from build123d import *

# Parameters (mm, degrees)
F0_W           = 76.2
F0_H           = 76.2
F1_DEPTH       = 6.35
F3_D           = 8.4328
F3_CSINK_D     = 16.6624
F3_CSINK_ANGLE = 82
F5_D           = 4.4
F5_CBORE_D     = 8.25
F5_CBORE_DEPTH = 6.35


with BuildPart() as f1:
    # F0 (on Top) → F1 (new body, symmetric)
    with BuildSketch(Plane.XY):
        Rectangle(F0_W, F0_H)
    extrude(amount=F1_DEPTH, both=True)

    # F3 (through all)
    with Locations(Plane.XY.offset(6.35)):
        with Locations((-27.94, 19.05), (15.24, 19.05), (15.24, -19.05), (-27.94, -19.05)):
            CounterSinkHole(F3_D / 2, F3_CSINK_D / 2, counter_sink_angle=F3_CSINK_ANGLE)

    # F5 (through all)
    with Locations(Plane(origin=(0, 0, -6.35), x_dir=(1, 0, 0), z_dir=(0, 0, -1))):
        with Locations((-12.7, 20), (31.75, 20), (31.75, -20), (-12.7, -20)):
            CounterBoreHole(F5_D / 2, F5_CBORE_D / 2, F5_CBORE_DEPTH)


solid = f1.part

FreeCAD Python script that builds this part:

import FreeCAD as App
import Part
import Sketcher
Q = App.Units.Quantity

doc = App.newDocument("Part")
body = doc.addObject("PartDesign::Body", "Body")

sketch1 = body.newObject("Sketcher::SketchObject", "Sketch")
sketch1.AttachmentSupport = (doc.getObject("XY_Plane"), [""])
sketch1.MapMode = "FlatFace"
sketch1.addGeometry([
    Part.LineSegment(App.Vector(-38, 38, 0), App.Vector(-38, -38, 0)),
    Part.LineSegment(App.Vector(-38, -38, 0), App.Vector(38, -38, 0)),
    Part.LineSegment(App.Vector(38, -38, 0), App.Vector(38, 38, 0)),
    Part.LineSegment(App.Vector(38, 38, 0), App.Vector(-38, 38, 0)),
], False)
sketch1.addConstraint([
    Sketcher.Constraint("Coincident", 0, 2, 1, 1),
    Sketcher.Constraint("Coincident", 1, 2, 2, 1),
    Sketcher.Constraint("Coincident", 2, 2, 3, 1),
    Sketcher.Constraint("Coincident", 3, 2, 0, 1),
    Sketcher.Constraint("Vertical", 0),
    Sketcher.Constraint("Horizontal", 1),
    Sketcher.Constraint("Vertical", 2),
    Sketcher.Constraint("Horizontal", 3),
    Sketcher.Constraint("Symmetric", 0, 2, 2, 2, -1, 1),
    Sketcher.Constraint("Equal", 3, 0),
    Sketcher.Constraint("DistanceX", 1, 1, 1, 2, Q("3 in")),
])
pad1 = body.newObject("PartDesign::Pad", "Pad")
pad1.Profile = sketch1
pad1.Length = Q("0.5 in")
pad1.Midplane = True

sketch2 = body.newObject("Sketcher::SketchObject", "Sketch001")
sketch2.AttachmentSupport = (doc.getObject("XY_Plane"), [""])
sketch2.MapMode = "FlatFace"
sketch2.AttachmentOffset = App.Placement(App.Vector(0, 0, 0.25 * 25.4), App.Rotation())
sketch2.addGeometry([
    Part.Circle(App.Vector(-27.9, 19.1, 0), App.Vector(0, 0, 1), 4.2),
    Part.Circle(App.Vector(15.2, 19.1, 0), App.Vector(0, 0, 1), 4.2),
    Part.Circle(App.Vector(15.2, -19.1, 0), App.Vector(0, 0, 1), 4.2),
    Part.Circle(App.Vector(-27.9, -19.1, 0), App.Vector(0, 0, 1), 4.2),
], False)
sketch2.addConstraint([
    Sketcher.Constraint("Equal", 0, 1),
    Sketcher.Constraint("Equal", 1, 2),
    Sketcher.Constraint("Equal", 2, 3),
    Sketcher.Constraint("Symmetric", 1, 3, 2, 3, -1),
    Sketcher.Constraint("Symmetric", 0, 3, 3, 3, -1),
    Sketcher.Constraint("Horizontal", 0, 3, 1, 3),
    Sketcher.Constraint("Diameter", 0, Q("0.332 in")),
    Sketcher.Constraint("DistanceX", 0, 3, -1, 1, Q("1.1 in")),
    Sketcher.Constraint("DistanceX", -1, 1, 1, 3, Q("0.6 in")),
    Sketcher.Constraint("DistanceY", 2, 3, 1, 3, Q("1.5 in")),
])
doc.recompute()
hole = body.newObject("PartDesign::Hole", "Hole")
hole.Profile = sketch2
hole.ThreadType = "None"
hole.Diameter = Q("0.332 in")
hole.DepthType = "ThroughAll"
hole.HoleCutType = "Countersink"
hole.HoleCutDiameter = Q("0.656 in")
hole.HoleCutCountersinkAngle = 82

sketch3 = body.newObject("Sketcher::SketchObject", "Sketch002")
sketch3.AttachmentSupport = (doc.getObject("XY_Plane"), [""])
sketch3.MapMode = "FlatFace"
sketch3.AttachmentOffset = App.Placement(App.Vector(0, 0, -0.25 * 25.4), App.Rotation())
sketch3.addGeometry([
    Part.Circle(App.Vector(-12.7, -20, 0), App.Vector(0, 0, 1), 2.2),
    Part.Circle(App.Vector(31.8, -20, 0), App.Vector(0, 0, 1), 2.2),
    Part.Circle(App.Vector(31.8, 20, 0), App.Vector(0, 0, 1), 2.2),
    Part.Circle(App.Vector(-12.7, 20, 0), App.Vector(0, 0, 1), 2.2),
], False)
sketch3.addConstraint([
    Sketcher.Constraint("Equal", 0, 1),
    Sketcher.Constraint("Equal", 1, 2),
    Sketcher.Constraint("Equal", 2, 3),
    Sketcher.Constraint("Symmetric", 1, 3, 2, 3, -1),
    Sketcher.Constraint("Symmetric", 0, 3, 3, 3, -1),
    Sketcher.Constraint("Horizontal", 0, 3, 1, 3),
    Sketcher.Constraint("DistanceX", 0, 3, -1, 1, Q("0.5 in")),
    Sketcher.Constraint("Diameter", 0, Q("4.4 mm")),
    Sketcher.Constraint("DistanceX", -1, 1, 1, 3, Q("1.25 in")),
    Sketcher.Constraint("DistanceY", 0, 3, -1, 1, Q("20 mm")),
])
doc.recompute()
hole2 = body.newObject("PartDesign::Hole", "Hole001")
hole2.Profile = sketch3
hole2.ThreadType = "None"
hole2.Diameter = 4.4
hole2.DepthType = "ThroughAll"
hole2.HoleCutType = "Counterbore"
hole2.HoleCutDiameter = 8.25
hole2.HoleCutDepth = Q("0.25 in")
hole2.Reversed = True

doc.recompute()
